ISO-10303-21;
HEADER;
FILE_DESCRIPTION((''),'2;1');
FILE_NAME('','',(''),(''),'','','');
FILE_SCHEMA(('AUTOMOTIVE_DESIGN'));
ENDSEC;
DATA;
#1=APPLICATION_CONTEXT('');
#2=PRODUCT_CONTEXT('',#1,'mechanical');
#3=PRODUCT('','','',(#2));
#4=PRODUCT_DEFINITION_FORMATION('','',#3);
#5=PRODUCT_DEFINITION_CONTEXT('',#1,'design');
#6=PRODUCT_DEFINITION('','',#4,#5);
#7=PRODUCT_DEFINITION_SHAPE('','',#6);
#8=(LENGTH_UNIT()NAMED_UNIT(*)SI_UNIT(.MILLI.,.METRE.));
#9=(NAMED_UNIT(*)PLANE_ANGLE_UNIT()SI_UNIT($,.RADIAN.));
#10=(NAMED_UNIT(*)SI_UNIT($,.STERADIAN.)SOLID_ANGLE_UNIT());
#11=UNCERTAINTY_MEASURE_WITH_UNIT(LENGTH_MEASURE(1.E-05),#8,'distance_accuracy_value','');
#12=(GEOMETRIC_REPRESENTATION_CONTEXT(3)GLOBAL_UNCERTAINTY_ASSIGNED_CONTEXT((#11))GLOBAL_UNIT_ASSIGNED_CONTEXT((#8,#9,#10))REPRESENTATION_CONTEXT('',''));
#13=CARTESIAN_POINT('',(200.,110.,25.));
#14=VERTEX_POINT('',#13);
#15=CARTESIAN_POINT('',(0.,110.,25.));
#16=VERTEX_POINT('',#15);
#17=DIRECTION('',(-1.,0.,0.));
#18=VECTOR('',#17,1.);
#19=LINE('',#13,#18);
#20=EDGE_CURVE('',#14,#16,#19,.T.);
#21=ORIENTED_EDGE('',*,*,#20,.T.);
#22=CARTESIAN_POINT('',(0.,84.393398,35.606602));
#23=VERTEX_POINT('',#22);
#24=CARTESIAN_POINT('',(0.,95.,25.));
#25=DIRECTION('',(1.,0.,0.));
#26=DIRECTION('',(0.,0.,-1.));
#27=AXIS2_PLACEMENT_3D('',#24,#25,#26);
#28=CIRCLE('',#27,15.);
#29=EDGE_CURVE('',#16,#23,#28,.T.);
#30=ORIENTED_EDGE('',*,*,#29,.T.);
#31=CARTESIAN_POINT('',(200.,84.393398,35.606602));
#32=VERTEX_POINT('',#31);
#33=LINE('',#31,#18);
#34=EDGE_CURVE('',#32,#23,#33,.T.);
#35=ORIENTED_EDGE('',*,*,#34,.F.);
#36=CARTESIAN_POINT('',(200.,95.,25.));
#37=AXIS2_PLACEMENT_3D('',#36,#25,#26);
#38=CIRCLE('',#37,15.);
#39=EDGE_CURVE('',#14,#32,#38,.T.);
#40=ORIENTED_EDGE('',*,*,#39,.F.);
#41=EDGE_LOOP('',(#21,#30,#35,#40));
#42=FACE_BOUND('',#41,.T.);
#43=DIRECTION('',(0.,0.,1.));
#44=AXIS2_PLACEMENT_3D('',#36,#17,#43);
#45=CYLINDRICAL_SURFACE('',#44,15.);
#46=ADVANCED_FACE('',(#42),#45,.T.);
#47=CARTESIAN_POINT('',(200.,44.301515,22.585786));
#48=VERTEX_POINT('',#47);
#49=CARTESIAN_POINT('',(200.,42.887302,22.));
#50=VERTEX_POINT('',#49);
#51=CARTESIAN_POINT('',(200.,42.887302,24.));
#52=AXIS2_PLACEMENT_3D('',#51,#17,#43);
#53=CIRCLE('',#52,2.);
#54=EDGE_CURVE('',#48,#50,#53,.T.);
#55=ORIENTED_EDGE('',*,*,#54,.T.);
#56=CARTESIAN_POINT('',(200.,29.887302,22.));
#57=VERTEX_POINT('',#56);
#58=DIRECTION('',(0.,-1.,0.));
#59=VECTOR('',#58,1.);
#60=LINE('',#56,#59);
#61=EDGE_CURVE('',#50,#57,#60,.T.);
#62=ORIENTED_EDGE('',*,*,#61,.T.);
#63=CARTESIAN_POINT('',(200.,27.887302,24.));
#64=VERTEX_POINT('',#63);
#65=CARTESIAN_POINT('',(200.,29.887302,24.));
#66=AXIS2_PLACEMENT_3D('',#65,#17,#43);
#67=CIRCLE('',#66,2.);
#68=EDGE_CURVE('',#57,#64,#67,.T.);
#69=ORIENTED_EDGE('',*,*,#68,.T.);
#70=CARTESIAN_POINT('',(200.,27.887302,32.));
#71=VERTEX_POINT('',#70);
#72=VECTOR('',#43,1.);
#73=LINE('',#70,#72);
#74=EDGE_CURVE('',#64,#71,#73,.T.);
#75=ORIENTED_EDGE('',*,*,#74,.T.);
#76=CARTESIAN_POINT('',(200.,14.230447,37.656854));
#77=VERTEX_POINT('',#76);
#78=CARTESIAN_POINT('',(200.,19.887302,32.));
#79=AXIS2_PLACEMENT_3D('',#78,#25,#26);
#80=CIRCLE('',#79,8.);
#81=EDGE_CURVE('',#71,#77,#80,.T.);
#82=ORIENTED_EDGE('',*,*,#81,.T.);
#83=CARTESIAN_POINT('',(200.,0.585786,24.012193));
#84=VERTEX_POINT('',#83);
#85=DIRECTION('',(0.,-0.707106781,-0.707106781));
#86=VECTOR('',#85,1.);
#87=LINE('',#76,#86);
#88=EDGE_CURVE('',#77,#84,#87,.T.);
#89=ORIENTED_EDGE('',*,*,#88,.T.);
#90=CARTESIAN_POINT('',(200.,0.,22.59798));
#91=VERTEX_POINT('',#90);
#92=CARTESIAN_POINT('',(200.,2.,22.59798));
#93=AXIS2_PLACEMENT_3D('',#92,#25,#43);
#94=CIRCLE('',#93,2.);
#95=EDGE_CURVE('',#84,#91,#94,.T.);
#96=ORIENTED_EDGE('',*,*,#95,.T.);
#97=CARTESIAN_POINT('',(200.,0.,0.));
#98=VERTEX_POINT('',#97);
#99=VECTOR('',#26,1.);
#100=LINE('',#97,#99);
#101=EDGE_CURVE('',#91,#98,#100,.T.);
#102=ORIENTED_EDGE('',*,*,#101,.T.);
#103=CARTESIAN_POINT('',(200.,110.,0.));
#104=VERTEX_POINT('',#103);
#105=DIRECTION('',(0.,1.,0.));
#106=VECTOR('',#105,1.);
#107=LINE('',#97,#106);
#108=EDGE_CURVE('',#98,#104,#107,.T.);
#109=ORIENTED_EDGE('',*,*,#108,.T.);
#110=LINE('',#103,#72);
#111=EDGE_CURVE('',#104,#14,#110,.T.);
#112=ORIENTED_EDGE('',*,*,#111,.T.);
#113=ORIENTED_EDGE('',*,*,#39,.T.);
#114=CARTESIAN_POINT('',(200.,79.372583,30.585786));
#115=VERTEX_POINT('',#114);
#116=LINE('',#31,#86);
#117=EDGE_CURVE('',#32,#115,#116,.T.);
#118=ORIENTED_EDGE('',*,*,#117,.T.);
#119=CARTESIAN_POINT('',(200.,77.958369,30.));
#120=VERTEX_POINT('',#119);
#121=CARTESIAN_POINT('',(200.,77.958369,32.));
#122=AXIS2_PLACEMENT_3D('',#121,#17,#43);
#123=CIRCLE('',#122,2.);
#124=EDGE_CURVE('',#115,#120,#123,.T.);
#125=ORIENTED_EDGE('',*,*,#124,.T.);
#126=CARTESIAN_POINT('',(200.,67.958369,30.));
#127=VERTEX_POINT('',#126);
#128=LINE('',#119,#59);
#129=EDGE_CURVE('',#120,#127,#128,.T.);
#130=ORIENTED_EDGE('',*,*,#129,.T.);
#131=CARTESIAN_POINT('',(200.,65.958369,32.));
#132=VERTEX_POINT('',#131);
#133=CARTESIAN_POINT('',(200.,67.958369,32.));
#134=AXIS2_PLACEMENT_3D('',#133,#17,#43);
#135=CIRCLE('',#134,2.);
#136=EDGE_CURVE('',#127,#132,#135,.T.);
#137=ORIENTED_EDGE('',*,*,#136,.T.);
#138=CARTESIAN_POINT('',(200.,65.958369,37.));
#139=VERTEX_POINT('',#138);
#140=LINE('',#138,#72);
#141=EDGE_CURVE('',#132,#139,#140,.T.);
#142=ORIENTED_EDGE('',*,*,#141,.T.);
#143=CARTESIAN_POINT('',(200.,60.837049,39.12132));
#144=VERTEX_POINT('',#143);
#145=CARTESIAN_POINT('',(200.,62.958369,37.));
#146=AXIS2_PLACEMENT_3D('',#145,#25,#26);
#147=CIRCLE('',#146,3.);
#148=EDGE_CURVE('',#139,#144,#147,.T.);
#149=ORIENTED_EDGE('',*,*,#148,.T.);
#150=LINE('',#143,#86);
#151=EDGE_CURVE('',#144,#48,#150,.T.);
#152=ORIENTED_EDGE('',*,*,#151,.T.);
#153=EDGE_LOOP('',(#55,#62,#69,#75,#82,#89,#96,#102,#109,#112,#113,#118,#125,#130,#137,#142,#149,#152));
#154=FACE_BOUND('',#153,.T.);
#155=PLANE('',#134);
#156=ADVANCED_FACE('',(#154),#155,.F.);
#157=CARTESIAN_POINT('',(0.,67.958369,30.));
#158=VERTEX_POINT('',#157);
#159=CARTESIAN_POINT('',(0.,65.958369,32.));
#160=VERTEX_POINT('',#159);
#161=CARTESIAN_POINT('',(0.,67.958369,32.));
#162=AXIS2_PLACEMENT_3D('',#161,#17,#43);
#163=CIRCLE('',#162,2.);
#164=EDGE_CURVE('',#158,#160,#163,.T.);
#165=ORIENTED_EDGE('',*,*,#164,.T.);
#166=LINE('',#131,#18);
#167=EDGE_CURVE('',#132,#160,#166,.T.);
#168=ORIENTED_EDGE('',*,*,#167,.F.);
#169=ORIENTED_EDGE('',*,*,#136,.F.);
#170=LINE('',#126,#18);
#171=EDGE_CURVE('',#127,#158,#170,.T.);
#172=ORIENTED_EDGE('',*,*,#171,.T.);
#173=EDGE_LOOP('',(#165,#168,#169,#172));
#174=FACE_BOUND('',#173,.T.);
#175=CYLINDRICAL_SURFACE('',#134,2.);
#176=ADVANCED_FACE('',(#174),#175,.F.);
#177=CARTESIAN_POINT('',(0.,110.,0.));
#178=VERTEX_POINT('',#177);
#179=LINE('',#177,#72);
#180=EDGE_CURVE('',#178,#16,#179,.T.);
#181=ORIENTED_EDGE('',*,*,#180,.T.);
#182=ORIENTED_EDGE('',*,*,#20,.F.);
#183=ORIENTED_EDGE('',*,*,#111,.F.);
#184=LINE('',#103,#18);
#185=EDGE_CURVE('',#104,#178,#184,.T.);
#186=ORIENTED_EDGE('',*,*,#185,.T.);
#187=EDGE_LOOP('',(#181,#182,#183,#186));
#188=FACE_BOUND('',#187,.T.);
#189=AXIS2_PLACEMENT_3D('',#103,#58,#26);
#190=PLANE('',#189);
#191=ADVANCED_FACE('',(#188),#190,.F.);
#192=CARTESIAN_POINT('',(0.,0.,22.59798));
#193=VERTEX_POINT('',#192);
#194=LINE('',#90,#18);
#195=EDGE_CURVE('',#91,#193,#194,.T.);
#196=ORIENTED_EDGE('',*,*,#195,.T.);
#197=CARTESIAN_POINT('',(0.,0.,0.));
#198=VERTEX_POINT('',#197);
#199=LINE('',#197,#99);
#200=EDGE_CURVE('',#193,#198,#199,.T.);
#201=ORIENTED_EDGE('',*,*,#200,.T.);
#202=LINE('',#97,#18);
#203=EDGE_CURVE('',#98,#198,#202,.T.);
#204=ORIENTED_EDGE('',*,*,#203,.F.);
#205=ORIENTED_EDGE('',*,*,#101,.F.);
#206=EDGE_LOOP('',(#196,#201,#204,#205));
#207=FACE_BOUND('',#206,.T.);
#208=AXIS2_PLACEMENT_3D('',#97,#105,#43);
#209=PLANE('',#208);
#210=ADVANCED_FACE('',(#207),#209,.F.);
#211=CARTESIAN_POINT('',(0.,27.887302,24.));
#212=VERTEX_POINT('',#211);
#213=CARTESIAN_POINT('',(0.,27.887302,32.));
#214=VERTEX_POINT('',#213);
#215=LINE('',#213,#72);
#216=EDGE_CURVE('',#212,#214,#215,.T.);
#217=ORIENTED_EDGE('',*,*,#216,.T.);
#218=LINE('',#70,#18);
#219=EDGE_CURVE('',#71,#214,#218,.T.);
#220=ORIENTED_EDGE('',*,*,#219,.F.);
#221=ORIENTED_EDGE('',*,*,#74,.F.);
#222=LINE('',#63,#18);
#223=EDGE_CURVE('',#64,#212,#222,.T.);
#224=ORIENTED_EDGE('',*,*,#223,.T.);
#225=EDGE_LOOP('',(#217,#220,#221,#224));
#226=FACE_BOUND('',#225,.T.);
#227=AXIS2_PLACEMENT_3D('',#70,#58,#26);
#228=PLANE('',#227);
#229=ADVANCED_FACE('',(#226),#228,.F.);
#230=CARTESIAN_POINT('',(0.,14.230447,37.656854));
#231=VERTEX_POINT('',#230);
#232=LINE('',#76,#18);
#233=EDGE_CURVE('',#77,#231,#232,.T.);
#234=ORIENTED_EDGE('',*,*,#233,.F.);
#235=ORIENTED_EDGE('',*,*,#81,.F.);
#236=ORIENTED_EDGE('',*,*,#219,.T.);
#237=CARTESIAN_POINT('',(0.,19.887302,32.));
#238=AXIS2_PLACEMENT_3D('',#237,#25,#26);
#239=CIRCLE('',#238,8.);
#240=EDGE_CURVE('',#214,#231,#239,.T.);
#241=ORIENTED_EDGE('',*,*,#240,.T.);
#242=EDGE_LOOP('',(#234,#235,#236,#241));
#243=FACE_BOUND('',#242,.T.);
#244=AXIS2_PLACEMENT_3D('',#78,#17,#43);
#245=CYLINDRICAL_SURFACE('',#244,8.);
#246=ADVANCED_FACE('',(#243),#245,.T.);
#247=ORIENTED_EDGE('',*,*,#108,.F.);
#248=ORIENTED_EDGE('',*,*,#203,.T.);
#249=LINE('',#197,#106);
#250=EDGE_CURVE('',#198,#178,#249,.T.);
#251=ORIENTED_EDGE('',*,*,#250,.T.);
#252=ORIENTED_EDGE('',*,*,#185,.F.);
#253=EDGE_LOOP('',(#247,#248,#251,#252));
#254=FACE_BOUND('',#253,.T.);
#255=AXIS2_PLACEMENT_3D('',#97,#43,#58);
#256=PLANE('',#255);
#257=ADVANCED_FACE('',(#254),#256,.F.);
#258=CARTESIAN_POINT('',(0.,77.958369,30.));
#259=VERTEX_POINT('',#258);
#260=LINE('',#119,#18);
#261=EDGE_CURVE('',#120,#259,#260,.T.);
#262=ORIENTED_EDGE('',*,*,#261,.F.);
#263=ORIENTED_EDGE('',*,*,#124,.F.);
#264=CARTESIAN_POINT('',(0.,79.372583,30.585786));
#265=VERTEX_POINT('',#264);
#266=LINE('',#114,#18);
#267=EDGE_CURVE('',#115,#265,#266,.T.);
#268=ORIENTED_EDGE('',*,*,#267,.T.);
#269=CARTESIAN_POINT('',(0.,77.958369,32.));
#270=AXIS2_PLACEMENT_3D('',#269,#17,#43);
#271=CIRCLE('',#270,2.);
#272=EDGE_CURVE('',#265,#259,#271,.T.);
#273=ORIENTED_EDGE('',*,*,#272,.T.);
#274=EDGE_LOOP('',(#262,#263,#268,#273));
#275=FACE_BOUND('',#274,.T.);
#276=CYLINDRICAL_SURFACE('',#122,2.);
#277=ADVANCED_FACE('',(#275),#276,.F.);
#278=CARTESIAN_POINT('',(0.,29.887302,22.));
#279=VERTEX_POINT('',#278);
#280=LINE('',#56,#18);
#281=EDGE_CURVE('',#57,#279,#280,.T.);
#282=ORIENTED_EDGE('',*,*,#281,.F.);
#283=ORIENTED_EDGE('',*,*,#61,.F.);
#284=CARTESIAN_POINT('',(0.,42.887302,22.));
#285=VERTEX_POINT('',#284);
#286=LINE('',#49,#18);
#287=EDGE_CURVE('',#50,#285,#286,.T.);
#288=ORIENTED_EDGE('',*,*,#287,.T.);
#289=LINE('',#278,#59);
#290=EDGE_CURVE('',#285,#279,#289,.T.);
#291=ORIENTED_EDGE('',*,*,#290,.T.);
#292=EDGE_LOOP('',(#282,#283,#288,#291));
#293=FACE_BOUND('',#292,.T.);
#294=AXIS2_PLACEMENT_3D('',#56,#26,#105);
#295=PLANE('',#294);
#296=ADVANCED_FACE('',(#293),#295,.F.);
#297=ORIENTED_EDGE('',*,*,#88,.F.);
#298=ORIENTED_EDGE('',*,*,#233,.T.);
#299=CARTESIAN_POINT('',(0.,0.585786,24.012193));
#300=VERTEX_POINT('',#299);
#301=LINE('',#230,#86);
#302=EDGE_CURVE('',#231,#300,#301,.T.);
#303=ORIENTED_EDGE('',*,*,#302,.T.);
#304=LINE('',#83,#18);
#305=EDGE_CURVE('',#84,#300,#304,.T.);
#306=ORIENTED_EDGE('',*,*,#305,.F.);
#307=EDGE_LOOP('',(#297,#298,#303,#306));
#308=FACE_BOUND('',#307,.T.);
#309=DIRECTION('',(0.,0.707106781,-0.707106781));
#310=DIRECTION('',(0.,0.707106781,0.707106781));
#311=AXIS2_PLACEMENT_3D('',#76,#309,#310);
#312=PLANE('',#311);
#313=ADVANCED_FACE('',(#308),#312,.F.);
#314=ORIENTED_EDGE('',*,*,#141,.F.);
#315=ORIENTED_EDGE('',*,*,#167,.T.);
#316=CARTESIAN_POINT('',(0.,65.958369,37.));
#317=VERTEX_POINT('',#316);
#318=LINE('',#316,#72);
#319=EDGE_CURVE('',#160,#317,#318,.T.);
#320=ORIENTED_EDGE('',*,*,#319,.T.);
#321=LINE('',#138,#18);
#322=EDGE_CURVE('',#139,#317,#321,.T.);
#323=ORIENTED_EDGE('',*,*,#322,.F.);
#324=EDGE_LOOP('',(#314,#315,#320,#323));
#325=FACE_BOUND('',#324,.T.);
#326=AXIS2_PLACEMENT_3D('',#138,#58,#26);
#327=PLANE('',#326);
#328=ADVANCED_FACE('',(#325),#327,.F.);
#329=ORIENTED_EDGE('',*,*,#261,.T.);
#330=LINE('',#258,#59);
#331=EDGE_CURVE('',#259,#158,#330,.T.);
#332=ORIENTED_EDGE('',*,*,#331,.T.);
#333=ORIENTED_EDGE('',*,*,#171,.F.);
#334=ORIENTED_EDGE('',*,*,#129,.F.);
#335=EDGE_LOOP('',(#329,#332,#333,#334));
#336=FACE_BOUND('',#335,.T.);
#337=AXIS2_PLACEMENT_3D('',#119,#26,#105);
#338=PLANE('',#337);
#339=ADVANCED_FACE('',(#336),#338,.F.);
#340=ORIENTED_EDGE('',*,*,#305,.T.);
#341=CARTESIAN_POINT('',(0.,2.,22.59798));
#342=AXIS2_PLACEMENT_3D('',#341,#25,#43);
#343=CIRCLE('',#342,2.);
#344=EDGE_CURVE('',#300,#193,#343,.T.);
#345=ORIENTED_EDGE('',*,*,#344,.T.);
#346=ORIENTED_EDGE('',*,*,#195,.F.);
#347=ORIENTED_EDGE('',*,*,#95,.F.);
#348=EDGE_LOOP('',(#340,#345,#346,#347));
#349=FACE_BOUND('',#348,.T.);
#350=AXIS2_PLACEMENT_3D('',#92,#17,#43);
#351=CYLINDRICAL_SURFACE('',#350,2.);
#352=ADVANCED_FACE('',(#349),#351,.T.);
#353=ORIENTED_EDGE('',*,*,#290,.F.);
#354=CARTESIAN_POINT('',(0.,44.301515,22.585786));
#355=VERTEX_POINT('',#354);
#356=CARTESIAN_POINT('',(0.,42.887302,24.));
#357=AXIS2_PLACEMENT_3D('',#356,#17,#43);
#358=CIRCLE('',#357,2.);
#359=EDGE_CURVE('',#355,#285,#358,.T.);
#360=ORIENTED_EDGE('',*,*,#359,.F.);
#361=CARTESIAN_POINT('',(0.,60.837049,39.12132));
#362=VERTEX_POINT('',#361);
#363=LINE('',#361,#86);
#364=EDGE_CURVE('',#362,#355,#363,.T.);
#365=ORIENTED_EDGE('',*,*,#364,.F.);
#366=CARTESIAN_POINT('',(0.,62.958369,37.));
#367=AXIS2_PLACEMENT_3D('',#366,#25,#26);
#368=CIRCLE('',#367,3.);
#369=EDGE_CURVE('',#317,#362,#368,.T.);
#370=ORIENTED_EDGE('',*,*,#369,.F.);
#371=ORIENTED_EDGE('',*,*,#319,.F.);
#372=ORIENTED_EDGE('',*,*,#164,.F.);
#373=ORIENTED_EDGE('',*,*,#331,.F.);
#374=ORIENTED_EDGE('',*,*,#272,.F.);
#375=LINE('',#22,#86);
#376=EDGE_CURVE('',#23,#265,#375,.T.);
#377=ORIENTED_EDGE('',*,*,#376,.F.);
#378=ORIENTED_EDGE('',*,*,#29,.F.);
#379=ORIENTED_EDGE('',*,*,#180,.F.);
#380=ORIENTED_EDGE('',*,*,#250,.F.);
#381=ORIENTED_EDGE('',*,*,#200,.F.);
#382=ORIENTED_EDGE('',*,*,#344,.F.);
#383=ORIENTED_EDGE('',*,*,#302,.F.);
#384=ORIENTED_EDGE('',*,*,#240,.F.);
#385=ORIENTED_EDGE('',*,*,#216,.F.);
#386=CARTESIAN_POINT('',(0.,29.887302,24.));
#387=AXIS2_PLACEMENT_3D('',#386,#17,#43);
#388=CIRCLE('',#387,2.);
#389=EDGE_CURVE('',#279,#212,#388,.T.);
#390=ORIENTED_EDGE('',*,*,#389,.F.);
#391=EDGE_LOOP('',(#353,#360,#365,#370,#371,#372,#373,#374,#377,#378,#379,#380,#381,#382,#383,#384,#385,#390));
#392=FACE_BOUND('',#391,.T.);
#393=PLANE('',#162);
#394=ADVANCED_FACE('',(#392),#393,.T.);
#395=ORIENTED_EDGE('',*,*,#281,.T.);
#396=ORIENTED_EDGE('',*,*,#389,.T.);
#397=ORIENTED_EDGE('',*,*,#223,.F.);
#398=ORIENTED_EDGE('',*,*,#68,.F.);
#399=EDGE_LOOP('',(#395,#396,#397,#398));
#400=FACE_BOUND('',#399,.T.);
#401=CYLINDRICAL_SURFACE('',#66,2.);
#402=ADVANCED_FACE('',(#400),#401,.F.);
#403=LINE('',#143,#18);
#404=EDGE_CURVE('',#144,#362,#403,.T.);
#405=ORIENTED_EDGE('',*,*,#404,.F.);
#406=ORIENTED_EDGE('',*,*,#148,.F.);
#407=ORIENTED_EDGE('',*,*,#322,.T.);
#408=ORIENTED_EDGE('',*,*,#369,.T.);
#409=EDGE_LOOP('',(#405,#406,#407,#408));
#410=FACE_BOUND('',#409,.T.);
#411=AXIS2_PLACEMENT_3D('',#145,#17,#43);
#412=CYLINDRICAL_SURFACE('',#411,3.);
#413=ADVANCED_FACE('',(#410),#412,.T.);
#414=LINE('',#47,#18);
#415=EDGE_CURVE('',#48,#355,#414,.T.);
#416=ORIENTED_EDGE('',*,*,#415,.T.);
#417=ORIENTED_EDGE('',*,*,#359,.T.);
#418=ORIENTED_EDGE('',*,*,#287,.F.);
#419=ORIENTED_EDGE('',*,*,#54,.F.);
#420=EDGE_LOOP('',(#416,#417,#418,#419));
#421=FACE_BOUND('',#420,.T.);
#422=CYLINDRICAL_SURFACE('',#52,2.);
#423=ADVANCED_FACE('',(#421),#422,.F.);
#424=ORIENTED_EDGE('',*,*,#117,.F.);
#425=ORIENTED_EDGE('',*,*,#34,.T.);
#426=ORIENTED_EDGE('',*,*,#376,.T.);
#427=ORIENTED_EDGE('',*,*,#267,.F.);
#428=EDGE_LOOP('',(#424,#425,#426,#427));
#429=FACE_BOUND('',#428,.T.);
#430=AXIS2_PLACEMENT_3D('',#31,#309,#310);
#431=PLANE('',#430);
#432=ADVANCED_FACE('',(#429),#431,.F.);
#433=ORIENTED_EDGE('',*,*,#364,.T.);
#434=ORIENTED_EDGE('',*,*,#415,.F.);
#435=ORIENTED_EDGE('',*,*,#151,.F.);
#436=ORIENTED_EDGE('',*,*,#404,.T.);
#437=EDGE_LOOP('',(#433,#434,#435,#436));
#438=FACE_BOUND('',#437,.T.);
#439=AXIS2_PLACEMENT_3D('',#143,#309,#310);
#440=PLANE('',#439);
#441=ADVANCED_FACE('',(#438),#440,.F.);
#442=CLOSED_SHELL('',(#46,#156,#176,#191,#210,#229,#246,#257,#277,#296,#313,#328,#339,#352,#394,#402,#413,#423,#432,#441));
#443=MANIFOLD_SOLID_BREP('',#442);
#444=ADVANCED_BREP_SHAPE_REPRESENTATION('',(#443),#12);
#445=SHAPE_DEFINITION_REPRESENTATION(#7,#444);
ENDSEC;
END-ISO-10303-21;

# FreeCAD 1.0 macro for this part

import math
import FreeCAD as App
import Part
import Sketcher
Q = App.Units.Quantity

doc = App.newDocument("Part")
body = doc.addObject("PartDesign::Body", "Body")

sketch1 = body.newObject("Sketcher::SketchObject", "Sketch")
sketch1.AttachmentSupport = (doc.getObject("YZ_Plane"), [""])
sketch1.MapMode = "FlatFace"
sketch1.addGeometry(Part.LineSegment(App.Vector(0, 22.59798, 0), App.Vector(0, 0, 0)), False)
sketch1.addGeometry(Part.LineSegment(App.Vector(0, 0, 0), App.Vector(110, 0, 0)), False)
sketch1.addGeometry(Part.LineSegment(App.Vector(110, 0, 0), App.Vector(110, 25, 0)), False)
sketch1.addGeometry(Part.ArcOfCircle(Part.Circle(App.Vector(95, 25, 0), App.Vector(0, 0, 1), 15), math.radians(0), math.radians(135)), False)
sketch1.addGeometry(Part.LineSegment(App.Vector(84.393398, 35.606602, 0), App.Vector(79.372583, 30.585786, 0)), False)
sketch1.addGeometry(Part.ArcOfCircle(Part.Circle(App.Vector(77.958369, 32, 0), App.Vector(0, 0, 1), 2), math.radians(-90), math.radians(-45)), False)
sketch1.addGeometry(Part.LineSegment(App.Vector(77.958369, 30, 0), App.Vector(67.958369, 30, 0)), False)
sketch1.addGeometry(Part.ArcOfCircle(Part.Circle(App.Vector(67.958369, 32, 0), App.Vector(0, 0, 1), 2), math.radians(180), math.radians(270)), False)
sketch1.addGeometry(Part.LineSegment(App.Vector(65.958369, 32, 0), App.Vector(65.958369, 37, 0)), False)
sketch1.addGeometry(Part.ArcOfCircle(Part.Circle(App.Vector(62.958369, 37, 0), App.Vector(0, 0, 1), 3), math.radians(0), math.radians(135)), False)
sketch1.addGeometry(Part.LineSegment(App.Vector(60.837049, 39.12132, 0), App.Vector(44.301515, 22.585786, 0)), False)
sketch1.addGeometry(Part.ArcOfCircle(Part.Circle(App.Vector(42.887302, 24, 0), App.Vector(0, 0, 1), 2), math.radians(-90), math.radians(-45)), False)
sketch1.addGeometry(Part.LineSegment(App.Vector(42.887302, 22, 0), App.Vector(29.887302, 22, 0)), False)
sketch1.addGeometry(Part.ArcOfCircle(Part.Circle(App.Vector(29.887302, 24, 0), App.Vector(0, 0, 1), 2), math.radians(180), math.radians(270)), False)
sketch1.addGeometry(Part.LineSegment(App.Vector(27.887302, 24, 0), App.Vector(27.887302, 32, 0)), False)
sketch1.addGeometry(Part.ArcOfCircle(Part.Circle(App.Vector(19.887302, 32, 0), App.Vector(0, 0, 1), 8), math.radians(0), math.radians(135)), False)
sketch1.addGeometry(Part.LineSegment(App.Vector(14.230447, 37.656854, 0), App.Vector(0.585786, 24.012193, 0)), False)
sketch1.addGeometry(Part.ArcOfCircle(Part.Circle(App.Vector(2, 22.59798, 0), App.Vector(0, 0, 1), 2), math.radians(135), math.radians(180)), False)
sketch1.addConstraint(Sketcher.Constraint("Coincident", 0, 2, 1, 1))
sketch1.addConstraint(Sketcher.Constraint("Coincident", 1, 2, 2, 1))
sketch1.addConstraint(Sketcher.Constraint("Tangent", 2, 2, 3, 1))
sketch1.addConstraint(Sketcher.Constraint("Tangent", 3, 2, 4, 1))
sketch1.addConstraint(Sketcher.Constraint("Tangent", 4, 2, 5, 2))
sketch1.addConstraint(Sketcher.Constraint("Tangent", 5, 1, 6, 1))
sketch1.addConstraint(Sketcher.Constraint("Tangent", 6, 2, 7, 2))
sketch1.addConstraint(Sketcher.Constraint("Tangent", 7, 1, 8, 1))
sketch1.addConstraint(Sketcher.Constraint("Tangent", 8, 2, 9, 1))
sketch1.addConstraint(Sketcher.Constraint("Tangent", 9, 2, 10, 1))
sketch1.addConstraint(Sketcher.Constraint("Tangent", 10, 2, 11, 2))
sketch1.addConstraint(Sketcher.Constraint("Tangent", 11, 1, 12, 1))
sketch1.addConstraint(Sketcher.Constraint("Tangent", 12, 2, 13, 2))
sketch1.addConstraint(Sketcher.Constraint("Tangent", 13, 1, 14, 1))
sketch1.addConstraint(Sketcher.Constraint("Tangent", 14, 2, 15, 1))
sketch1.addConstraint(Sketcher.Constraint("Tangent", 15, 2, 16, 1))
sketch1.addConstraint(Sketcher.Constraint("Tangent", 16, 2, 17, 1))
sketch1.addConstraint(Sketcher.Constraint("Tangent", 17, 2, 0, 1))
sketch1.addConstraint(Sketcher.Constraint("Vertical", 0))
sketch1.addConstraint(Sketcher.Constraint("Horizontal", 1))
sketch1.addConstraint(Sketcher.Constraint("Vertical", 2))
sketch1.addConstraint(Sketcher.Constraint("Horizontal", 6))
sketch1.addConstraint(Sketcher.Constraint("Vertical", 8))
sketch1.addConstraint(Sketcher.Constraint("Horizontal", 12))
sketch1.addConstraint(Sketcher.Constraint("Vertical", 14))
sketch1.addConstraint(Sketcher.Constraint("Coincident", 0, 2, -1, 1))
sketch1.addConstraint(Sketcher.Constraint("Equal", 5, 7))
sketch1.addConstraint(Sketcher.Constraint("Equal", 7, 11))
sketch1.addConstraint(Sketcher.Constraint("Equal", 11, 13))
sketch1.addConstraint(Sketcher.Constraint("Equal", 13, 17))
sketch1.addConstraint(Sketcher.Constraint("Parallel", 4, 10))
sketch1.addConstraint(Sketcher.Constraint("Parallel", 10, 16))
sketch1.addConstraint(Sketcher.Constraint("Horizontal", 7, 3, 15, 3))
sketch1.addConstraint(Sketcher.Constraint("Radius", 3, Q("15 mm")))
sketch1.addConstraint(Sketcher.Constraint("Radius", 5, Q("2 mm")))
sketch1.addConstraint(Sketcher.Constraint("Radius", 9, Q("3 mm")))
sketch1.addConstraint(Sketcher.Constraint("Radius", 15, Q("8 mm")))
sketch1.addConstraint(Sketcher.Constraint("DistanceX", 1, 1, 1, 2, Q("110 mm")))
sketch1.addConstraint(Sketcher.Constraint("DistanceX", 6, 2, 6, 1, Q("10 mm")))
sketch1.addConstraint(Sketcher.Constraint("DistanceX", 12, 2, 12, 1, Q("13 mm")))
sketch1.addConstraint(Sketcher.Constraint("DistanceY", 2, 1, 2, 2, Q("25 mm")))
sketch1.addConstraint(Sketcher.Constraint("DistanceY", 8, 1, 8, 2, Q("5 mm")))
sketch1.addConstraint(Sketcher.Constraint("DistanceY", 14, 1, 14, 2, Q("8 mm")))
sketch1.addConstraint(Sketcher.Constraint("Angle", 4, Q("-135 deg")))
sketch1.addConstraint(Sketcher.Constraint("DistanceY", -1, 1, 5, 3, Q("32 mm")))
pad1 = body.newObject("PartDesign::Pad", "Pad")
pad1.Profile = sketch1
pad1.Length = 200

doc.recompute()
